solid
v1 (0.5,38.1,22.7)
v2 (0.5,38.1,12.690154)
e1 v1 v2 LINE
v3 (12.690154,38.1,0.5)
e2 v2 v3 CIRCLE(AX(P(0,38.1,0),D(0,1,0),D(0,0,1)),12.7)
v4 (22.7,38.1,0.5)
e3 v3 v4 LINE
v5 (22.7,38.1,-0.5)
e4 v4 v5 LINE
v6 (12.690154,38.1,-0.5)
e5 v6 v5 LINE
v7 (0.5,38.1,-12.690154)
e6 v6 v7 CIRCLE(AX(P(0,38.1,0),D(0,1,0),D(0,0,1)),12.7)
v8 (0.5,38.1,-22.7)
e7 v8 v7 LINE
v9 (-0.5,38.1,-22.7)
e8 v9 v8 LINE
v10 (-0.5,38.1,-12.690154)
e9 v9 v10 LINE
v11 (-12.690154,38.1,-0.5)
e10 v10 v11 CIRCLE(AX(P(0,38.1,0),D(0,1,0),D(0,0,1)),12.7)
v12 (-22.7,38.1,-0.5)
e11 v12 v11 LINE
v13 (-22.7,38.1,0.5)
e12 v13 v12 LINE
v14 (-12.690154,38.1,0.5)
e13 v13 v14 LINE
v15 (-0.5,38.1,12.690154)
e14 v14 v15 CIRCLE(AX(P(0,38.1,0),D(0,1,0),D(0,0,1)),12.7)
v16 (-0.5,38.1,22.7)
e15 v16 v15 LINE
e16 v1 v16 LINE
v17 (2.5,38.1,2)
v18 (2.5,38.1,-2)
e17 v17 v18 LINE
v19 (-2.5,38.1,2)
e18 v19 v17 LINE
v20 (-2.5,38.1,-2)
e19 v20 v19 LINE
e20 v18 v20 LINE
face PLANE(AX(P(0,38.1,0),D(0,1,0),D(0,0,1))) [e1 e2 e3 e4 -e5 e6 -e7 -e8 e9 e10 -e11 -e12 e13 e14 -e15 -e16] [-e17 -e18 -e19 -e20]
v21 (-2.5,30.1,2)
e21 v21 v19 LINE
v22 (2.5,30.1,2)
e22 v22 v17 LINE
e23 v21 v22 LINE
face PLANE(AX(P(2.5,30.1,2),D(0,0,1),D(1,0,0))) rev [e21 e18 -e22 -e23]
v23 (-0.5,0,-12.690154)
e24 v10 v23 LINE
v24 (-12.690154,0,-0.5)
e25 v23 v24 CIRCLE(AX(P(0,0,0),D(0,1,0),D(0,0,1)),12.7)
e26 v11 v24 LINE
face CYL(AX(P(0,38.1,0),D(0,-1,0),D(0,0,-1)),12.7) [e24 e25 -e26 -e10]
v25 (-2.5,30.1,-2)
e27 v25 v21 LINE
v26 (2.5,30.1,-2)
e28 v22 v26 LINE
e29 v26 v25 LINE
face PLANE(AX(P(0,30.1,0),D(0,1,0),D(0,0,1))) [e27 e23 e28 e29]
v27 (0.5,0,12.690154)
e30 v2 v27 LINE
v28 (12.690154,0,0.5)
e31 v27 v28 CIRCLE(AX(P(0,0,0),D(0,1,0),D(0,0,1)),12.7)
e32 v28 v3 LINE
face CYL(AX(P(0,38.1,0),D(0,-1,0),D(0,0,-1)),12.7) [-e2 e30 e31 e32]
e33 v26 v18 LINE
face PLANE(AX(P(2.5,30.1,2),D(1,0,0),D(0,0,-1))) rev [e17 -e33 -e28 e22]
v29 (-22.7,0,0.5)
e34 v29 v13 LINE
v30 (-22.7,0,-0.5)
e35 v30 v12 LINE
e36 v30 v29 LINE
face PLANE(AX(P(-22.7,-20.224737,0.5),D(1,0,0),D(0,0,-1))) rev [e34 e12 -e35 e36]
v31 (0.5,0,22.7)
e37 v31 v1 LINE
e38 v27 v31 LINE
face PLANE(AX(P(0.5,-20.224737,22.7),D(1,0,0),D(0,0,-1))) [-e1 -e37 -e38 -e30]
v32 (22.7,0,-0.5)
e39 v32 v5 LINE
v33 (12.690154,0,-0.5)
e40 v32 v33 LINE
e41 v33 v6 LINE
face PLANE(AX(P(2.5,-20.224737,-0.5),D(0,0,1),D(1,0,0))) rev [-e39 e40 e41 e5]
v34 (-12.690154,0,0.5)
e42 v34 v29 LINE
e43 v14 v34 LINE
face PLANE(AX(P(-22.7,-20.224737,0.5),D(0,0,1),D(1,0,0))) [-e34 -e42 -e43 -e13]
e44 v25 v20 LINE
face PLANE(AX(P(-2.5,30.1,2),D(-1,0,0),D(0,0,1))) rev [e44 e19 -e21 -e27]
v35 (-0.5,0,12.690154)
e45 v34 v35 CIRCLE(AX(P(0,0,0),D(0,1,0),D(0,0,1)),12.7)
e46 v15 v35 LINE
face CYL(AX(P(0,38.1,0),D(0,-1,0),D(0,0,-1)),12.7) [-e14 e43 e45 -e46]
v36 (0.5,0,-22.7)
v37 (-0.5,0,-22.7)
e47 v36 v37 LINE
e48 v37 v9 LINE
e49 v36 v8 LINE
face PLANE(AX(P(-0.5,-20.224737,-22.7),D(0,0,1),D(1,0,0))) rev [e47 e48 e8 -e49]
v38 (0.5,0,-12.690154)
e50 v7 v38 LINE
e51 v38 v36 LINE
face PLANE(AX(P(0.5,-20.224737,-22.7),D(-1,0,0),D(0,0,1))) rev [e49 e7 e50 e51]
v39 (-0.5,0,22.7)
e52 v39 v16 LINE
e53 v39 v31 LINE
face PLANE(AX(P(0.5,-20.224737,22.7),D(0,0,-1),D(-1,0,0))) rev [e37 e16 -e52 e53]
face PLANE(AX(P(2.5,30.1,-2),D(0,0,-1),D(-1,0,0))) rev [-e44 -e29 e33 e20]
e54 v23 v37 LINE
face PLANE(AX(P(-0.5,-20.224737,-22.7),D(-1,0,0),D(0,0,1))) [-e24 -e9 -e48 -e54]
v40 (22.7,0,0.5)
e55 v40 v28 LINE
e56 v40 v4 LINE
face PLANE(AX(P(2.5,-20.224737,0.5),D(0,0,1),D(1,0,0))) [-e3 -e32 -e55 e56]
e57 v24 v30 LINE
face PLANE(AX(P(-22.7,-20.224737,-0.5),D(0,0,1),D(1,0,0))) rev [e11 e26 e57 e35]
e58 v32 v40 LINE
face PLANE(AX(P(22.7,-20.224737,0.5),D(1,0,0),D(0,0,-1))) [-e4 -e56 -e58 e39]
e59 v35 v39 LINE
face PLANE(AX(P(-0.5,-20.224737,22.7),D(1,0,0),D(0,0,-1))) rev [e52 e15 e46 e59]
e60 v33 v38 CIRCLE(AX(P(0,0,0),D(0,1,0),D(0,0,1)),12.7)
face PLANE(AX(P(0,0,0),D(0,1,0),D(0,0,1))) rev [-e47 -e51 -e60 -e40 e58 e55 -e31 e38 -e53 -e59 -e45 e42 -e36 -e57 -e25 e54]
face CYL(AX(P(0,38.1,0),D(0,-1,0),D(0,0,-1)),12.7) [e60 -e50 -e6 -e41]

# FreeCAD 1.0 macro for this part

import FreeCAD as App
import Part
import Sketcher

V = App.Vector

doc = App.newDocument("Part")
body = doc.addObject("PartDesign::Body", "Body")

sketch1 = body.newObject("Sketcher::SketchObject", "Sketch")
sketch1.AttachmentSupport = (doc.getObject("XZ_Plane"), [""])
sketch1.MapMode = "FlatFace"
sketch1.addGeometry(Part.Circle(V(0, 0, 0), V(0, 0, 1), 12.7), False)
sketch1.addConstraint([
    Sketcher.Constraint("Coincident", 0, 3, -1, 1),
    Sketcher.Constraint("Diameter", 0, 25.4),
])
pad1 = body.newObject("PartDesign::Pad", "Pad")
pad1.Profile = sketch1
pad1.Length = 38.1
pad1.Reversed = True

sketch2 = body.newObject("Sketcher::SketchObject", "Sketch001")
sketch2.AttachmentSupport = (doc.getObject("XZ_Plane"), [""])
sketch2.MapMode = "FlatFace"
sketch2.AttachmentOffset = App.Placement(V(0, 0, -38.1), App.Rotation())
sketch2.addGeometry([
    Part.LineSegment(V(-2.5, -2, 0), V(-2.5, 2, 0)),
    Part.LineSegment(V(-2.5, 2, 0), V(2.5, 2, 0)),
    Part.LineSegment(V(2.5, 2, 0), V(2.5, -2, 0)),
    Part.LineSegment(V(2.5, -2, 0), V(-2.5, -2, 0)),
], False)
sketch2.addConstraint([
    Sketcher.Constraint("Coincident", 0, 2, 1, 1),
    Sketcher.Constraint("Coincident", 1, 2, 2, 1),
    Sketcher.Constraint("Coincident", 2, 2, 3, 1),
    Sketcher.Constraint("Coincident", 3, 2, 0, 1),
    Sketcher.Constraint("Vertical", 0),
    Sketcher.Constraint("Horizontal", 1),
    Sketcher.Constraint("Vertical", 2),
    Sketcher.Constraint("Horizontal", 3),
    Sketcher.Constraint("Symmetric", 0, 2, 2, 2, -1, 1),
    Sketcher.Constraint("DistanceX", 1, 1, 1, 2, 5.0),
    Sketcher.Constraint("DistanceY", 0, 1, 0, 2, 4.0),
])
pocket1 = body.newObject("PartDesign::Pocket", "Pocket")
pocket1.Profile = sketch2
pocket1.Length = 8
pocket1.Reversed = True

sketch3 = body.newObject("Sketcher::SketchObject", "Sketch002")
sketch3.AttachmentSupport = (doc.getObject("XZ_Plane"), [""])
sketch3.MapMode = "FlatFace"
sketch3.AttachmentOffset = App.Placement(V(0, 0, -38.1), App.Rotation())
sketch3.addGeometry([
    Part.LineSegment(V(-0.5, -22.7, 0), V(-0.5, -2.5, 0)),
    Part.LineSegment(V(-0.5, -2.5, 0), V(0.5, -2.5, 0)),
    Part.LineSegment(V(0.5, -2.5, 0), V(0.5, -22.7, 0)),
    Part.LineSegment(V(0.5, -22.7, 0), V(-0.5, -22.7, 0)),
    Part.LineSegment(V(-22.7, -0.5, 0), V(-22.7, 0.5, 0)),
    Part.LineSegment(V(-22.7, 0.5, 0), V(-2.5, 0.5, 0)),
    Part.LineSegment(V(-2.5, 0.5, 0), V(-2.5, -0.5, 0)),
    Part.LineSegment(V(-2.5, -0.5, 0), V(-22.7, -0.5, 0)),
    Part.LineSegment(V(2.5, -0.5, 0), V(2.5, 0.5, 0)),
    Part.LineSegment(V(2.5, 0.5, 0), V(22.7, 0.5, 0)),
    Part.LineSegment(V(22.7, 0.5, 0), V(22.7, -0.5, 0)),
    Part.LineSegment(V(22.7, -0.5, 0), V(2.5, -0.5, 0)),
    Part.LineSegment(V(-0.5, 2.5, 0), V(-0.5, 22.7, 0)),
    Part.LineSegment(V(-0.5, 22.7, 0), V(0.5, 22.7, 0)),
    Part.LineSegment(V(0.5, 22.7, 0), V(0.5, 2.5, 0)),
    Part.LineSegment(V(0.5, 2.5, 0), V(-0.5, 2.5, 0)),
], False)
sketch3.addConstraint([
    Sketcher.Constraint("Coincident", 0, 2, 1, 1),
    Sketcher.Constraint("Coincident", 1, 2, 2, 1),
    Sketcher.Constraint("Coincident", 2, 2, 3, 1),
    Sketcher.Constraint("Coincident", 3, 2, 0, 1),
    Sketcher.Constraint("Coincident", 4, 2, 5, 1),
    Sketcher.Constraint("Coincident", 5, 2, 6, 1),
    Sketcher.Constraint("Coincident", 6, 2, 7, 1),
    Sketcher.Constraint("Coincident", 7, 2, 4, 1),
    Sketcher.Constraint("Coincident", 8, 2, 9, 1),
    Sketcher.Constraint("Coincident", 9, 2, 10, 1),
    Sketcher.Constraint("Coincident", 10, 2, 11, 1),
    Sketcher.Constraint("Coincident", 11, 2, 8, 1),
    Sketcher.Constraint("Coincident", 12, 2, 13, 1),
    Sketcher.Constraint("Coincident", 13, 2, 14, 1),
    Sketcher.Constraint("Coincident", 14, 2, 15, 1),
    Sketcher.Constraint("Coincident", 15, 2, 12, 1),
    Sketcher.Constraint("Vertical", 0),
    Sketcher.Constraint("Horizontal", 1),
    Sketcher.Constraint("Vertical", 2),
    Sketcher.Constraint("Horizontal", 3),
    Sketcher.Constraint("Vertical", 4),
    Sketcher.Constraint("Horizontal", 5),
    Sketcher.Constraint("Vertical", 6),
    Sketcher.Constraint("Horizontal", 7),
    Sketcher.Constraint("Vertical", 8),
    Sketcher.Constraint("Horizontal", 9),
    Sketcher.Constraint("Vertical", 10),
    Sketcher.Constraint("Horizontal", 11),
    Sketcher.Constraint("Vertical", 12),
    Sketcher.Constraint("Horizontal", 13),
    Sketcher.Constraint("Vertical", 14),
    Sketcher.Constraint("Horizontal", 15),
    Sketcher.Constraint("Symmetric", 6, 2, 8, 2, -1, 1),
    Sketcher.Constraint("Symmetric", 4, 2, 10, 2, -1, 1),
    Sketcher.Constraint("Symmetric", 2, 2, 12, 2, -1, 1),
    Sketcher.Constraint("Symmetric", 0, 2, 14, 2, -1, 1),
    Sketcher.Constraint("Horizontal", 5, 2, 8, 2),
    Sketcher.Constraint("Vertical", 3, 2, 12, 2),
    Sketcher.Constraint("Equal", 11, 0),
    Sketcher.Constraint("Equal", 15, 4),
    Sketcher.Constraint("DistanceX", 1, 1, 1, 2, 1.0),
    Sketcher.Constraint("DistanceX", 5, 1, 5, 2, 20.2),
    Sketcher.Constraint("DistanceY", 0, 2, 4, 2, 3.0),
    Sketcher.Constraint("DistanceX", 5, 2, 0, 2, 2.0),
])
pad2 = body.newObject("PartDesign::Pad", "Pad001")
pad2.Profile = sketch3
pad2.Length = 38.1

doc.recompute()
